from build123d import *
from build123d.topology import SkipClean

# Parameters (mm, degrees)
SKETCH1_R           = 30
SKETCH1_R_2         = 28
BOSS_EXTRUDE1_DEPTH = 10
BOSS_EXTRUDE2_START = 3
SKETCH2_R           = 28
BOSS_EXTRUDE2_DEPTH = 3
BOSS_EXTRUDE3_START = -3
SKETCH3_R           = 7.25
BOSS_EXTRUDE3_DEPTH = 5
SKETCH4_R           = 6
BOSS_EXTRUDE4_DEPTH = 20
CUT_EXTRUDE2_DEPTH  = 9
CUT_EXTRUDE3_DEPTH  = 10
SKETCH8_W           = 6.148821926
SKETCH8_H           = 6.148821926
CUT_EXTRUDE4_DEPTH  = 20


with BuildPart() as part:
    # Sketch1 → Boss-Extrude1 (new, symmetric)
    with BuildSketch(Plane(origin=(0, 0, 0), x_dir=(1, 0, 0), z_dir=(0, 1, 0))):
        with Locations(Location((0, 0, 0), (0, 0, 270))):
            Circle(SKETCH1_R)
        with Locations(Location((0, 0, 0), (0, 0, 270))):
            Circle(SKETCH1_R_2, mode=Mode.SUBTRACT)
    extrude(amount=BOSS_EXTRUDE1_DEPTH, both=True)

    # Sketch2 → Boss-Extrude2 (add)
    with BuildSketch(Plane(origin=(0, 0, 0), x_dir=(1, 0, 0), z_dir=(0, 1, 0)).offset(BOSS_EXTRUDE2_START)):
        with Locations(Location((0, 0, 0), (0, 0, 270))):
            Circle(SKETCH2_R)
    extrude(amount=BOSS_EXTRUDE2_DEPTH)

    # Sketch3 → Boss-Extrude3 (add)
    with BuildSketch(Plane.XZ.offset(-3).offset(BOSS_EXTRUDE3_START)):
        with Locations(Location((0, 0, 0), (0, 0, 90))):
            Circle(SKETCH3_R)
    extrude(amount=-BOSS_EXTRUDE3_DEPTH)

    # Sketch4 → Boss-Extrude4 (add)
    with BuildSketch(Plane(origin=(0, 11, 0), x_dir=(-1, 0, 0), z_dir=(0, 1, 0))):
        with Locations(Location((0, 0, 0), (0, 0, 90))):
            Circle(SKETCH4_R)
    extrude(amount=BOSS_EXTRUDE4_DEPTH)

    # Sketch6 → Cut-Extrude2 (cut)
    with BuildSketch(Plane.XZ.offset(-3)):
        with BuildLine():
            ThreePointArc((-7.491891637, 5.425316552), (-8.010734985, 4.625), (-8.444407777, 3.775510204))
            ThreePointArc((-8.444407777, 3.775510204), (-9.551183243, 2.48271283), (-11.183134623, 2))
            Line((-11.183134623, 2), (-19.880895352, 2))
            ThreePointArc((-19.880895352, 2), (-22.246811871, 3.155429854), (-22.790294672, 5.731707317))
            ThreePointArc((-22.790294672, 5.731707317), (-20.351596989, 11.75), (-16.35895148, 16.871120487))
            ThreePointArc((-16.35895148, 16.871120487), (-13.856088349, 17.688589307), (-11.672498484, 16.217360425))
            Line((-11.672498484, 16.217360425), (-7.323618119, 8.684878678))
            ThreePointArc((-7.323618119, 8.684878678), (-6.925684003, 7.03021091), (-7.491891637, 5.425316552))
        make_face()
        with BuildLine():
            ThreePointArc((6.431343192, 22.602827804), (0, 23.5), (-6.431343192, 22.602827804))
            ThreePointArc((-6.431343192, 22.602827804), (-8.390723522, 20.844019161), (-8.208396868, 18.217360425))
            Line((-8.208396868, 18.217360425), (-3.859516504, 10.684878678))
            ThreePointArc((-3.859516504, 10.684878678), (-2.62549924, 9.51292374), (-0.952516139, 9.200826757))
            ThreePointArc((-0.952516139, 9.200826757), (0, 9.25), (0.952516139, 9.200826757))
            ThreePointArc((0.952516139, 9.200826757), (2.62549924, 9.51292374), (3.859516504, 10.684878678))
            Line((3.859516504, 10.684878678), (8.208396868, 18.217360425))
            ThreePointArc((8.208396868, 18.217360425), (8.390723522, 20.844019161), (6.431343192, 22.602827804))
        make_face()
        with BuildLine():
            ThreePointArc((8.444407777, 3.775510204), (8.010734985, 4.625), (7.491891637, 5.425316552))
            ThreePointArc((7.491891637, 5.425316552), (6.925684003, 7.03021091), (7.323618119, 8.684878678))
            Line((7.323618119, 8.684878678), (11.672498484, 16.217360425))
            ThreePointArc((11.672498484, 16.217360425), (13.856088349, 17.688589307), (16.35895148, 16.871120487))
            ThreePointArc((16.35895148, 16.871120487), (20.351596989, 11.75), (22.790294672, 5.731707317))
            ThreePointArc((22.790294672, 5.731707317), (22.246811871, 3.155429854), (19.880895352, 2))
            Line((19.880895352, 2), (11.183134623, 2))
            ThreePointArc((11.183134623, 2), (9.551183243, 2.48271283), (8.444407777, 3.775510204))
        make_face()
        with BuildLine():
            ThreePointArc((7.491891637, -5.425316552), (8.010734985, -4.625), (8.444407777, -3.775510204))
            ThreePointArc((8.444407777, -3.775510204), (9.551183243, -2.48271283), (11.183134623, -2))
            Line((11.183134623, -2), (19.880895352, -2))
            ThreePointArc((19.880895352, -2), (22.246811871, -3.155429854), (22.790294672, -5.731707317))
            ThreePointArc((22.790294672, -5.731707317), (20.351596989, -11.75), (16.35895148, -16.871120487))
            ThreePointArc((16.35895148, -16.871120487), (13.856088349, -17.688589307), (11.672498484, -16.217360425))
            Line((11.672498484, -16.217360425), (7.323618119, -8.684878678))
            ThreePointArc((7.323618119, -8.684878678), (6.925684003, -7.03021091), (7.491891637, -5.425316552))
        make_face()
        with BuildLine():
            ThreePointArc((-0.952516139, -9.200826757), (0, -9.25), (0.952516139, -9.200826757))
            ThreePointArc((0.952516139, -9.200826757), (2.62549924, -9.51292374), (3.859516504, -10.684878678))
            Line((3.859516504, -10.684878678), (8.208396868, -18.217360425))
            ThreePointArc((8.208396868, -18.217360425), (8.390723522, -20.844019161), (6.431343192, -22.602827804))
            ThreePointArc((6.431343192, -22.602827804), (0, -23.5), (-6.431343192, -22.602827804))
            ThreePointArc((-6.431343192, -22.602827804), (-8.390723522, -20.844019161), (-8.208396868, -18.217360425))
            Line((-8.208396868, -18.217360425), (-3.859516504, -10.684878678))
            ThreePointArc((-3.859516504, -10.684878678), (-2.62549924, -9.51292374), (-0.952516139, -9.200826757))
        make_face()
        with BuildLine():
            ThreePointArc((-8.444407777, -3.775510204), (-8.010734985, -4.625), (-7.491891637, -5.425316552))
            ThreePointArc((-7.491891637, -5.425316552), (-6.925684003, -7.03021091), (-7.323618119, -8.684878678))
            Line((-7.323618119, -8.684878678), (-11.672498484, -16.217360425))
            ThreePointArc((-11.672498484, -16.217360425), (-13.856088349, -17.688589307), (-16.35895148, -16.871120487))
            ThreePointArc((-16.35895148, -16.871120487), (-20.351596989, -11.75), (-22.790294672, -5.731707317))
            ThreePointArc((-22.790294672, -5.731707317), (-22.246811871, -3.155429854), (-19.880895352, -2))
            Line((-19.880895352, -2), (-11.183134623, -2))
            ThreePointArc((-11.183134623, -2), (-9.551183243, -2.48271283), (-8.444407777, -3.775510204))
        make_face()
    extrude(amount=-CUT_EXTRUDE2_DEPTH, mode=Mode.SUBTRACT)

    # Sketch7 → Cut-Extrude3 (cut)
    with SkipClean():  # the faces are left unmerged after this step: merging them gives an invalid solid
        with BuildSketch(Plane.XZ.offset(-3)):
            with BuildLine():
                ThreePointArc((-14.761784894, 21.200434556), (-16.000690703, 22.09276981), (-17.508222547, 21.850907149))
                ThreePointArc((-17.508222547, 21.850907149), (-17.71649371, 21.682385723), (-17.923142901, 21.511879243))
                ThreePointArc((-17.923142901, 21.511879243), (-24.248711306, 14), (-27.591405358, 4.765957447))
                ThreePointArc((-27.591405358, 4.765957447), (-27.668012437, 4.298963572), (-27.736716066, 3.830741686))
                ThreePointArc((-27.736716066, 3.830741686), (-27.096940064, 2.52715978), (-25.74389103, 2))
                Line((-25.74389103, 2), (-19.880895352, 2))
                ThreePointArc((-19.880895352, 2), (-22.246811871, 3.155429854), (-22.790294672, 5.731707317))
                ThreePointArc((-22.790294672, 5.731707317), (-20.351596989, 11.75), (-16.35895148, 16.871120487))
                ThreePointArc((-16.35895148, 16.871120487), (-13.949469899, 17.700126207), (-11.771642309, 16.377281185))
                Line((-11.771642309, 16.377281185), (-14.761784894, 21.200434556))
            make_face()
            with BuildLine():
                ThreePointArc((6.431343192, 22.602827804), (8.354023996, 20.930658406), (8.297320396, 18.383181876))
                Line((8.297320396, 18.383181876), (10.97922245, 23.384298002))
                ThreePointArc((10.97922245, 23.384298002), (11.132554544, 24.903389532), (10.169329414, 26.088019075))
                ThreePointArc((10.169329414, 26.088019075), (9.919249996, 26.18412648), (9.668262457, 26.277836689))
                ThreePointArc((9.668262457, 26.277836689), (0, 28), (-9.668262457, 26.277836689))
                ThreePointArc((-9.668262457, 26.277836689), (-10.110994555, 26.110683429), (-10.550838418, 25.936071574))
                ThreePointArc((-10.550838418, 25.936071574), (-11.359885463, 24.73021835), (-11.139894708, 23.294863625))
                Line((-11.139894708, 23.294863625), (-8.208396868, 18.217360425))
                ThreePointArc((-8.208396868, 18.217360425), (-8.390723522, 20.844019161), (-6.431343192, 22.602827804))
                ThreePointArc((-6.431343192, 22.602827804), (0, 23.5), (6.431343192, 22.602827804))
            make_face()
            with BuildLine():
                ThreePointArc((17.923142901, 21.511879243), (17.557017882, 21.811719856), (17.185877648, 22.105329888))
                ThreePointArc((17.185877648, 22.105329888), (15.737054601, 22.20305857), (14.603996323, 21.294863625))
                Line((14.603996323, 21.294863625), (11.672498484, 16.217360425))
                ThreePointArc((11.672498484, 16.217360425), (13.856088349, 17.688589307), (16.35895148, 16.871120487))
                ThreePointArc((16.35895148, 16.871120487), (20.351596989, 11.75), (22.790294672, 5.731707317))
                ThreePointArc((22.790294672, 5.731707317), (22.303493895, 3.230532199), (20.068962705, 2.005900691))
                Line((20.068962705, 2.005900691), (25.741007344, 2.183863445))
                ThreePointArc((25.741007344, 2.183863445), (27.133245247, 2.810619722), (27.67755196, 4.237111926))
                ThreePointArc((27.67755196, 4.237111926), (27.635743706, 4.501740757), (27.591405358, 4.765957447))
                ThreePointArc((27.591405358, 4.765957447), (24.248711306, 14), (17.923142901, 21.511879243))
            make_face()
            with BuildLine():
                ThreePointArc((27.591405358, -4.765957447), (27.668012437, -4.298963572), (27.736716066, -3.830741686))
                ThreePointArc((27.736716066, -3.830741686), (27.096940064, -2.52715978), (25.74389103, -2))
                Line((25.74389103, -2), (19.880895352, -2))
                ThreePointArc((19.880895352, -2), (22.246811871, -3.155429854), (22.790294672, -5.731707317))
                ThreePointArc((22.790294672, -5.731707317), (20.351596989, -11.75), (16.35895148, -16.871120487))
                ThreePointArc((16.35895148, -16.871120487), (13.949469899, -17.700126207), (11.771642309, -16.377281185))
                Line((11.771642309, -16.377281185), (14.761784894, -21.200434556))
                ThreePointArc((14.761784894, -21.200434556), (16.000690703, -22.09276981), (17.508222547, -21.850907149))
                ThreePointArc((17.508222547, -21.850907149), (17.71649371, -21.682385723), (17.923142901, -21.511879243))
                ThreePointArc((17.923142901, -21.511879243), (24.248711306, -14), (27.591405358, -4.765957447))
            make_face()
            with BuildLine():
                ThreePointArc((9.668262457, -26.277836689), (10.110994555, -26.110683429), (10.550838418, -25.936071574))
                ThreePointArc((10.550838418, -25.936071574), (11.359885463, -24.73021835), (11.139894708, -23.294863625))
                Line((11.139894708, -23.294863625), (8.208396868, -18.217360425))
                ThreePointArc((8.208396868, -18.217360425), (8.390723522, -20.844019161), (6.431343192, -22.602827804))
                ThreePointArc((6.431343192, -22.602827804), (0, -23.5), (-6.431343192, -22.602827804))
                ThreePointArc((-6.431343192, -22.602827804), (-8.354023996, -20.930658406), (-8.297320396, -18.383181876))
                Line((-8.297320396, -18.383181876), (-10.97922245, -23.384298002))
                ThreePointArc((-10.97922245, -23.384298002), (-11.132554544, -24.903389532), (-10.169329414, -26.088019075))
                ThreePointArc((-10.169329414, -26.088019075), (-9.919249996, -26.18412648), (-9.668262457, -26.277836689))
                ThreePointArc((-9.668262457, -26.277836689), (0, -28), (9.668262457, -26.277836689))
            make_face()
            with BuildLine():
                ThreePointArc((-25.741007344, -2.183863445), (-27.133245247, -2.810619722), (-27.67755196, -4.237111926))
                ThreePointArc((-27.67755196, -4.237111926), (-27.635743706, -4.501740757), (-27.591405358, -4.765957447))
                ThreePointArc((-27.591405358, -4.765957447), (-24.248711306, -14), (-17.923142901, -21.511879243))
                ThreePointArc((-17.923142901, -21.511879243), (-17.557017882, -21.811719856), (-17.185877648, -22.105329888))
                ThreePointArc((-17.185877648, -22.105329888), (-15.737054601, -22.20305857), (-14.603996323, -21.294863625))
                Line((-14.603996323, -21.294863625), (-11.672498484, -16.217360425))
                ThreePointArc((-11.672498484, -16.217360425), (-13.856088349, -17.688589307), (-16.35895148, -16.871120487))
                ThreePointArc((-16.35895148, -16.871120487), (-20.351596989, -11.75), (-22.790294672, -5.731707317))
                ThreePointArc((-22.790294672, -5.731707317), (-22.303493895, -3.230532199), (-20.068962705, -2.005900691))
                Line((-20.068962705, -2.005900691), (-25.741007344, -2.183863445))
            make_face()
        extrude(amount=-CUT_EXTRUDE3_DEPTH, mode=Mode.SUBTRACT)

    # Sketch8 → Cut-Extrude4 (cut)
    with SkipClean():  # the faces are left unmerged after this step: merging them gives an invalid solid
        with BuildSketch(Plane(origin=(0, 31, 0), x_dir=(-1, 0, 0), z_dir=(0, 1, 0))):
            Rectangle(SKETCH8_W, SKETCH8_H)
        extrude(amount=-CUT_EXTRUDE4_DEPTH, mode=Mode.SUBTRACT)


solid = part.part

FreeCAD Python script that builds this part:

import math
import FreeCAD as App
import Part
import Sketcher

V = App.Vector
Q = App.Units.Quantity

doc = App.newDocument("Part")
body = doc.addObject("PartDesign::Body", "Body")

# Sketch on XZ plane
sketch1 = body.newObject("Sketcher::SketchObject", "Sketch")
sketch1.AttachmentSupport = (doc.getObject("XZ_Plane"), [""])
sketch1.MapMode = "FlatFace"
sketch1.addGeometry([
    Part.Circle(V(0, 0, 0), V(0, 0, 1), 30),
    Part.Circle(V(0, 0, 0), V(0, 0, 1), 28),
], False)
sketch1.addConstraint([
    Sketcher.Constraint("Coincident", 0, 3, -1, 1),
    Sketcher.Constraint("Coincident", 1, 3, -1, 1),
    Sketcher.Constraint("Diameter", 0, 60.0),
    Sketcher.Constraint("Diameter", 1, 56.0),
])
pad1 = body.newObject("PartDesign::Pad", "Pad")
pad1.Profile = sketch1
pad1.Length = 20
pad1.Midplane = True

# Sketch on XZ plane
sketch2 = body.newObject("Sketcher::SketchObject", "Sketch001")
sketch2.AttachmentSupport = (doc.getObject("XZ_Plane"), [""])
sketch2.MapMode = "FlatFace"
sketch2.AttachmentOffset = App.Placement(V(0, 0, -3), App.Rotation())
sketch2.addGeometry(Part.Circle(V(0, 0, 0), V(0, 0, 1), 28), False)
sketch2.addConstraint([
    Sketcher.Constraint("Coincident", 0, 3, -1, 1),
    Sketcher.Constraint("Diameter", 0, 56.0),
])
pad2 = body.newObject("PartDesign::Pad", "Pad001")
pad2.Profile = sketch2
pad2.Length = 3
pad2.Reversed = True

# Sketch on XZ plane
sketch3 = body.newObject("Sketcher::SketchObject", "Sketch002")
sketch3.AttachmentSupport = (doc.getObject("XZ_Plane"), [""])
sketch3.MapMode = "FlatFace"
sketch3.AttachmentOffset = App.Placement(V(0, 0, -6), App.Rotation())
sketch3.addGeometry(Part.Circle(V(0, 0, 0), V(0, 0, 1), 7), False)
sketch3.addConstraint([
    Sketcher.Constraint("Coincident", 0, 3, -1, 1),
    Sketcher.Constraint("Diameter", 0, 14.5),
])
pad3 = body.newObject("PartDesign::Pad", "Pad002")
pad3.Profile = sketch3
pad3.Length = 5
pad3.Reversed = True

# Sketch on XZ plane
sketch4 = body.newObject("Sketcher::SketchObject", "Sketch003")
sketch4.AttachmentSupport = (doc.getObject("XZ_Plane"), [""])
sketch4.MapMode = "FlatFace"
sketch4.AttachmentOffset = App.Placement(V(0, 0, -11), App.Rotation())
sketch4.addGeometry(Part.Circle(V(0, 0, 0), V(0, 0, 1), 6), False)
sketch4.addConstraint([
    Sketcher.Constraint("Coincident", 0, 3, -1, 1),
    Sketcher.Constraint("Diameter", 0, 12.0),
])
pad4 = body.newObject("PartDesign::Pad", "Pad003")
pad4.Profile = sketch4
pad4.Length = 20
pad4.Reversed = True

# Sketch on XZ plane
sketch5 = body.newObject("Sketcher::SketchObject", "Sketch004")
sketch5.AttachmentSupport = (doc.getObject("XZ_Plane"), [""])
sketch5.MapMode = "FlatFace"
sketch5.AttachmentOffset = App.Placement(V(0, 0, -3), App.Rotation())
sketch5.addGeometry([
    Part.ArcOfCircle(Part.Circle(V(0, 0, 0), V(0, 0, 1), 9.2), math.radians(144.09), math.radians(155.91)),  # 0
    Part.ArcOfCircle(Part.Circle(V(-9.9, 7.2, 0), V(0, 0, 1), 3), math.radians(-36), math.radians(30)),  # 1
    Part.LineSegment(V(-7.3, 8.7, 0), V(-11.7, 16.2, 0)),  # 2
    Part.ArcOfCircle(Part.Circle(V(-14.3, 14.7, 0), V(0, 0, 1), 3), math.radians(30), math.radians(134)),  # 3
    Part.ArcOfCircle(Part.Circle(V(0, 0, 0), V(0, 0, 1), 23.5), math.radians(134), math.radians(166)),  # 4
    Part.ArcOfCircle(Part.Circle(V(-19.9, 5, 0), V(0, 0, 1), 3), math.radians(166), math.radians(270)),  # 5
    Part.LineSegment(V(-19.9, 2, 0), V(-11.2, 2, 0)),  # 6
    Part.ArcOfCircle(Part.Circle(V(-11.2, 5, 0), V(0, 0, 1), 3), math.radians(-90), math.radians(-24)),  # 7
    Part.ArcOfCircle(Part.Circle(V(0, 0, 0), V(0, 0, 1), 23.5), math.radians(74), math.radians(106)),  # 8
    Part.ArcOfCircle(Part.Circle(V(-5.6, 19.7, 0), V(0, 0, 1), 3), math.radians(106), math.radians(210)),  # 9
    Part.LineSegment(V(-8.2, 18.2, 0), V(-3.9, 10.7, 0)),  # 10
    Part.ArcOfCircle(Part.Circle(V(-1.3, 12.2, 0), V(0, 0, 1), 3), math.radians(-150), math.radians(-84)),  # 11
    Part.ArcOfCircle(Part.Circle(V(0, 0, 0), V(0, 0, 1), 9.3), math.radians(84.09), math.radians(95.91)),  # 12
    Part.ArcOfCircle(Part.Circle(V(1.3, 12.2, 0), V(0, 0, 1), 3), math.radians(-96), math.radians(-30)),  # 13
    Part.LineSegment(V(3.9, 10.7, 0), V(8.2, 18.2, 0)),  # 14
    Part.ArcOfCircle(Part.Circle(V(5.6, 19.7, 0), V(0, 0, 1), 3), math.radians(-30), math.radians(74)),  # 15
    Part.ArcOfCircle(Part.Circle(V(0, 0, 0), V(0, 0, 1), 9.2), math.radians(24.09), math.radians(35.91)),  # 16
    Part.ArcOfCircle(Part.Circle(V(11.2, 5, 0), V(0, 0, 1), 3), math.radians(-156), math.radians(-90)),  # 17
    Part.LineSegment(V(11.2, 2, 0), V(19.9, 2, 0)),  # 18
    Part.ArcOfCircle(Part.Circle(V(19.9, 5, 0), V(0, 0, 1), 3), math.radians(-90), math.radians(14)),  # 19
    Part.ArcOfCircle(Part.Circle(V(0, 0, 0), V(0, 0, 1), 23.5), math.radians(14), math.radians(46)),  # 20
    Part.ArcOfCircle(Part.Circle(V(14.3, 14.7, 0), V(0, 0, 1), 3), math.radians(46), math.radians(150)),  # 21
    Part.LineSegment(V(11.7, 16.2, 0), V(7.3, 8.7, 0)),  # 22
    Part.ArcOfCircle(Part.Circle(V(9.9, 7.2, 0), V(0, 0, 1), 3), math.radians(150), math.radians(216)),  # 23
    Part.ArcOfCircle(Part.Circle(V(0, 0, 0), V(0, 0, 1), 9.2), math.radians(-35.91), math.radians(-24.09)),  # 24
    Part.ArcOfCircle(Part.Circle(V(9.9, -7.2, 0), V(0, 0, 1), 3), math.radians(144), math.radians(210)),  # 25
    Part.LineSegment(V(7.3, -8.7, 0), V(11.7, -16.2, 0)),  # 26
    Part.ArcOfCircle(Part.Circle(V(14.3, -14.7, 0), V(0, 0, 1), 3), math.radians(-150), math.radians(-46)),  # 27
    Part.ArcOfCircle(Part.Circle(V(0, 0, 0), V(0, 0, 1), 23.5), math.radians(-46), math.radians(-14)),  # 28
    Part.ArcOfCircle(Part.Circle(V(19.9, -5, 0), V(0, 0, 1), 3), math.radians(-14), math.radians(90)),  # 29
    Part.LineSegment(V(19.9, -2, 0), V(11.2, -2, 0)),  # 30
    Part.ArcOfCircle(Part.Circle(V(11.2, -5, 0), V(0, 0, 1), 3), math.radians(90), math.radians(156)),  # 31
    Part.ArcOfCircle(Part.Circle(V(0, 0, 0), V(0, 0, 1), 9.3), math.radians(-95.91), math.radians(-84.09)),  # 32
    Part.ArcOfCircle(Part.Circle(V(-1.3, -12.2, 0), V(0, 0, 1), 3), math.radians(84), math.radians(150)),  # 33
    Part.LineSegment(V(-3.9, -10.7, 0), V(-8.2, -18.2, 0)),  # 34
    Part.ArcOfCircle(Part.Circle(V(-5.6, -19.7, 0), V(0, 0, 1), 3), math.radians(150), math.radians(254)),  # 35
    Part.ArcOfCircle(Part.Circle(V(0, 0, 0), V(0, 0, 1), 23.5), math.radians(-106), math.radians(-74)),  # 36
    Part.ArcOfCircle(Part.Circle(V(5.6, -19.7, 0), V(0, 0, 1), 3), math.radians(-74), math.radians(30)),  # 37
    Part.LineSegment(V(8.2, -18.2, 0), V(3.9, -10.7, 0)),  # 38
    Part.ArcOfCircle(Part.Circle(V(1.3, -12.2, 0), V(0, 0, 1), 3), math.radians(30), math.radians(96)),  # 39
    Part.ArcOfCircle(Part.Circle(V(0, 0, 0), V(0, 0, 1), 9.2), math.radians(-155.91), math.radians(-144.09)),  # 40
    Part.ArcOfCircle(Part.Circle(V(-11.2, -5, 0), V(0, 0, 1), 3), math.radians(24), math.radians(90)),  # 41
    Part.LineSegment(V(-11.2, -2, 0), V(-19.9, -2, 0)),  # 42
    Part.ArcOfCircle(Part.Circle(V(-19.9, -5, 0), V(0, 0, 1), 3), math.radians(90), math.radians(194)),  # 43
    Part.ArcOfCircle(Part.Circle(V(0, 0, 0), V(0, 0, 1), 23.5), math.radians(-166), math.radians(-134)),  # 44
    Part.ArcOfCircle(Part.Circle(V(-14.3, -14.7, 0), V(0, 0, 1), 3), math.radians(-134), math.radians(-30)),  # 45
    Part.LineSegment(V(-11.7, -16.2, 0), V(-7.3, -8.7, 0)),  # 46
    Part.ArcOfCircle(Part.Circle(V(-9.9, -7.2, 0), V(0, 0, 1), 3), math.radians(-30), math.radians(36)),  # 47
], False)
sketch5.addConstraint([
    Sketcher.Constraint("Tangent", 0, 1, 1, 1),
    Sketcher.Constraint("Tangent", 1, 2, 2, 1),
    Sketcher.Constraint("Tangent", 2, 2, 3, 1),
    Sketcher.Constraint("Tangent", 3, 2, 4, 1),
    Sketcher.Constraint("Tangent", 4, 2, 5, 1),
    Sketcher.Constraint("Tangent", 5, 2, 6, 1),
    Sketcher.Constraint("Tangent", 6, 2, 7, 1),
    Sketcher.Constraint("Tangent", 7, 2, 0, 2),
    Sketcher.Constraint("Tangent", 8, 2, 9, 1),
    Sketcher.Constraint("Tangent", 9, 2, 10, 1),
    Sketcher.Constraint("Tangent", 10, 2, 11, 1),
    Sketcher.Constraint("Tangent", 11, 2, 12, 2),
    Sketcher.Constraint("Tangent", 12, 1, 13, 1),
    Sketcher.Constraint("Tangent", 13, 2, 14, 1),
    Sketcher.Constraint("Tangent", 14, 2, 15, 1),
    Sketcher.Constraint("Tangent", 15, 2, 8, 1),
    Sketcher.Constraint("Tangent", 16, 1, 17, 1),
    Sketcher.Constraint("Tangent", 17, 2, 18, 1),
    Sketcher.Constraint("Tangent", 18, 2, 19, 1),
    Sketcher.Constraint("Tangent", 19, 2, 20, 1),
    Sketcher.Constraint("Tangent", 20, 2, 21, 1),
    Sketcher.Constraint("Tangent", 21, 2, 22, 1),
    Sketcher.Constraint("Tangent", 22, 2, 23, 1),
    Sketcher.Constraint("Tangent", 23, 2, 16, 2),
    Sketcher.Constraint("Tangent", 24, 1, 25, 1),
    Sketcher.Constraint("Tangent", 25, 2, 26, 1),
    Sketcher.Constraint("Tangent", 26, 2, 27, 1),
    Sketcher.Constraint("Tangent", 27, 2, 28, 1),
    Sketcher.Constraint("Tangent", 28, 2, 29, 1),
    Sketcher.Constraint("Tangent", 29, 2, 30, 1),
    Sketcher.Constraint("Tangent", 30, 2, 31, 1),
    Sketcher.Constraint("Tangent", 31, 2, 24, 2),
    Sketcher.Constraint("Tangent", 32, 1, 33, 1),
    Sketcher.Constraint("Tangent", 33, 2, 34, 1),
    Sketcher.Constraint("Tangent", 34, 2, 35, 1),
    Sketcher.Constraint("Tangent", 35, 2, 36, 1),
    Sketcher.Constraint("Tangent", 36, 2, 37, 1),
    Sketcher.Constraint("Tangent", 37, 2, 38, 1),
    Sketcher.Constraint("Tangent", 38, 2, 39, 1),
    Sketcher.Constraint("Tangent", 39, 2, 32, 2),
    Sketcher.Constraint("Tangent", 40, 1, 41, 1),
    Sketcher.Constraint("Tangent", 41, 2, 42, 1),
    Sketcher.Constraint("Tangent", 42, 2, 43, 1),
    Sketcher.Constraint("Tangent", 43, 2, 44, 1),
    Sketcher.Constraint("Tangent", 44, 2, 45, 1),
    Sketcher.Constraint("Tangent", 45, 2, 46, 1),
    Sketcher.Constraint("Tangent", 46, 2, 47, 1),
    Sketcher.Constraint("Tangent", 47, 2, 40, 2),
    Sketcher.Constraint("Horizontal", 6),
    Sketcher.Constraint("Horizontal", 18),
    Sketcher.Constraint("Horizontal", 30),
    Sketcher.Constraint("Horizontal", 42),
    Sketcher.Constraint("Coincident", 0, 3, -1, 1),
    Sketcher.Constraint("Coincident", 4, 3, -1, 1),
    Sketcher.Constraint("Coincident", 8, 3, -1, 1),
    Sketcher.Constraint("Coincident", 12, 3, -1, 1),
    Sketcher.Constraint("Coincident", 16, 3, -1, 1),
    Sketcher.Constraint("Coincident", 20, 3, -1, 1),
    Sketcher.Constraint("Coincident", 24, 3, -1, 1),
    Sketcher.Constraint("Coincident", 28, 3, -1, 1),
    Sketcher.Constraint("Coincident", 32, 3, -1, 1),
    Sketcher.Constraint("Coincident", 36, 3, -1, 1),
    Sketcher.Constraint("Coincident", 40, 3, -1, 1),
    Sketcher.Constraint("Coincident", 44, 3, -1, 1),
    Sketcher.Constraint("Equal", 1, 3),
    Sketcher.Constraint("Equal", 3, 5),
    Sketcher.Constraint("Equal", 5, 7),
    Sketcher.Constraint("Equal", 4, 8),
    Sketcher.Constraint("Equal", 7, 9),
    Sketcher.Constraint("Equal", 9, 11),
    Sketcher.Constraint("Equal", 0, 12),
    Sketcher.Constraint("Equal", 11, 13),
    Sketcher.Constraint("Equal", 13, 15),
    Sketcher.Constraint("Equal", 12, 16),
    Sketcher.Constraint("Equal", 15, 17),
    Sketcher.Constraint("Equal", 17, 19),
    Sketcher.Constraint("Equal", 8, 20),
    Sketcher.Constraint("Equal", 19, 21),
    Sketcher.Constraint("Equal", 21, 23),
    Sketcher.Constraint("Equal", 16, 24),
    Sketcher.Constraint("Equal", 23, 25),
    Sketcher.Constraint("Equal", 25, 27),
    Sketcher.Constraint("Equal", 20, 28),
    Sketcher.Constraint("Equal", 27, 29),
    Sketcher.Constraint("Equal", 29, 31),
    Sketcher.Constraint("Equal", 24, 32),
    Sketcher.Constraint("Equal", 31, 33),
    Sketcher.Constraint("Equal", 33, 35),
    Sketcher.Constraint("Equal", 28, 36),
    Sketcher.Constraint("Equal", 35, 37),
    Sketcher.Constraint("Equal", 37, 39),
    Sketcher.Constraint("Equal", 32, 40),
    Sketcher.Constraint("Equal", 39, 41),
    Sketcher.Constraint("Equal", 41, 43),
    Sketcher.Constraint("Equal", 36, 44),
    Sketcher.Constraint("Equal", 43, 45),
    Sketcher.Constraint("Equal", 45, 47),
    Sketcher.Constraint("Symmetric", 1, 2, 25, 2, -1, 1),
    Sketcher.Constraint("Symmetric", 13, 2, 33, 2, -1, 1),
    Sketcher.Constraint("Symmetric", 9, 2, 37, 2, -1, 1),
    Sketcher.Constraint("Symmetric", 21, 2, 45, 2, -1, 1),
    Sketcher.Constraint("Symmetric", 10, 2, 13, 2, -2),
    Sketcher.Constraint("Symmetric", 2, 2, 21, 2, -2),
    Sketcher.Constraint("Parallel", 2, 10),
    Sketcher.Constraint("Horizontal", 7, 3, 17, 3),
    Sketcher.Constraint("Horizontal", 31, 3, 41, 3),
    Sketcher.Constraint("Vertical", 19, 3, 29, 3),
    Sketcher.Constraint("Equal", 2, 10),
    Sketcher.Constraint("Radius", 1, 3.0),
    Sketcher.Constraint("Radius", 4, 23.5),
    Sketcher.Constraint("Angle", 2, Q("120 deg")),
    Sketcher.Constraint("Radius", 0, 9.25),
    Sketcher.Constraint("DistanceY", -1, 1, 5, 3, 5.0),
    Sketcher.Constraint("DistanceX", 2, 2, -1, 1, 11.672498),
])
pocket1 = body.newObject("PartDesign::Pocket", "Pocket")
pocket1.Profile = sketch5
pocket1.Length = 9

# Sketch on XZ plane
sketch6 = body.newObject("Sketcher::SketchObject", "Sketch005")
sketch6.AttachmentSupport = (doc.getObject("XZ_Plane"), [""])
sketch6.MapMode = "FlatFace"
sketch6.AttachmentOffset = App.Placement(V(0, 0, -3), App.Rotation())
sketch6.addGeometry([
    Part.ArcOfCircle(Part.Circle(V(-16.461624, 20.146609, 0), V(0, 0, 1), 2), math.radians(31.797089), math.radians(121.553828)),  # 0
    Part.ArcOfCircle(Part.Circle(V(-0.000004, 0.000005, 0), V(0, 0, 1), 27.999994), math.radians(128.703745), math.radians(129.80019)),  # 1
    Part.ArcOfCircle(Part.Circle(V(0, 0, 0), V(0, 0, 1), 28), math.radians(129.80019), math.radians(170.19981)),  # 2
    Part.ArcOfCircle(Part.Circle(V(0, 0, 0), V(0, 0, 1), 28), math.radians(170.19981), math.radians(172.136576)),  # 3
    Part.ArcOfCircle(Part.Circle(V(-25.743891, 4, 0), V(0, 0, 1), 2), math.radians(-175.1453), math.radians(-90)),  # 4
    Part.LineSegment(V(-25.743891, 2, 0), V(-19.880895, 2, 0)),  # 5
    Part.ArcOfCircle(Part.Circle(V(-19.880895, 5, 0), V(0, 0, 1), 3), math.radians(165.883019), math.radians(270)),  # 6
    Part.ArcOfCircle(Part.Circle(V(0, 0, 0), V(0, 0, 1), 23.5), math.radians(134.116981), math.radians(165.883019)),  # 7
    Part.ArcOfCircle(Part.Circle(V(-14.270575, 14.71736, 0), V(0, 0, 1), 3), math.radians(33.594179), math.radians(134.116981)),  # 8
    Part.LineSegment(V(-11.771642, 16.377281, 0), V(-14.761785, 21.200435, 0)),  # 9
    Part.ArcOfCircle(Part.Circle(V(5.610321, 19.71736, 0), V(0, 0, 1), 3), math.radians(-26.405821), math.radians(74.116981)),  # 10
    Part.LineSegment(V(8.29732, 18.383182, 0), V(10.979222, 23.384298, 0)),  # 11
    Part.ArcOfCircle(Part.Circle(V(9.216664, 24.329489, 0), V(0, 0, 1), 2), math.radians(-28.202911), math.radians(61.553828)),  # 12
    Part.ArcOfCircle(Part.Circle(V(0.000002, 0.000005, 0), V(0, 0, 1), 27.999994), math.radians(68.703745), math.radians(69.80019)),  # 13
    Part.ArcOfCircle(Part.Circle(V(0, 0, 0), V(0, 0, 1), 28), math.radians(69.80019), math.radians(110.19981)),  # 14
    Part.ArcOfCircle(Part.Circle(V(-0.000001, 0.000002, 0), V(0, 0, 1), 27.999998), math.radians(110.19981), math.radians(112.136576)),  # 15
    Part.ArcOfCircle(Part.Circle(V(-9.407844, 24.294864, 0), V(0, 0, 1), 2), math.radians(124.8547), math.radians(210)),  # 16
    Part.LineSegment(V(-11.139895, 23.294864, 0), V(-8.208397, 18.21736, 0)),  # 17
    Part.ArcOfCircle(Part.Circle(V(-5.610321, 19.71736, 0), V(0, 0, 1), 3), math.radians(105.883019), math.radians(210)),  # 18
    Part.ArcOfCircle(Part.Circle(V(0, 0, 0), V(0, 0, 1), 23.5), math.radians(74.116981), math.radians(105.883019)),  # 19
    Part.ArcOfCircle(Part.Circle(V(-0.000001, -0.000002, 0), V(0, 0, 1), 28.000002), math.radians(50.19981), math.radians(52.136576)),  # 20
    Part.ArcOfCircle(Part.Circle(V(16.336047, 20.294864, 0), V(0, 0, 1), 2), math.radians(64.8547), math.radians(150)),  # 21
    Part.LineSegment(V(14.603996, 21.294864, 0), V(11.672498, 16.21736, 0)),  # 22
    Part.ArcOfCircle(Part.Circle(V(14.270575, 14.71736, 0), V(0, 0, 1), 3), math.radians(45.883019), math.radians(150)),  # 23
    Part.ArcOfCircle(Part.Circle(V(0, 0, 0), V(0, 0, 1), 23.5), math.radians(14.116981), math.radians(45.883019)),  # 24
    Part.ArcOfCircle(Part.Circle(V(19.880895, 5, 0), V(0, 0, 1), 3), math.radians(-86.405821), math.radians(14.116981)),  # 25
    Part.LineSegment(V(20.068963, 2.005901, 0), V(25.741007, 2.183863, 0)),  # 26
    Part.ArcOfCircle(Part.Circle(V(25.678287, 4.18288, 0), V(0, 0, 1), 2), math.radians(-88.202911), math.radians(1.553828)),  # 27
    Part.ArcOfCircle(Part.Circle(V(0.000013, 0.000002, 0), V(0, 0, 1), 27.999987), math.radians(8.703744), math.radians(9.80019)),  # 28
    Part.ArcOfCircle(Part.Circle(V(0, 0, 0), V(0, 0, 1), 28), math.radians(9.80019), math.radians(50.19981)),  # 29
    Part.ArcOfCircle(Part.Circle(V(0, 0, 0), V(0, 0, 1), 28), math.radians(-9.80019), math.radians(-7.863424)),  # 30
    Part.ArcOfCircle(Part.Circle(V(25.743891, -4, 0), V(0, 0, 1), 2), math.radians(4.8547), math.radians(90)),  # 31
    Part.LineSegment(V(25.743891, -2, 0), V(19.880895, -2, 0)),  # 32
    Part.ArcOfCircle(Part.Circle(V(19.880895, -5, 0), V(0, 0, 1), 3), math.radians(-14.116981), math.radians(90)),  # 33
    Part.ArcOfCircle(Part.Circle(V(0, 0, 0), V(0, 0, 1), 23.5), math.radians(-45.883019), math.radians(-14.116981)),  # 34
    Part.ArcOfCircle(Part.Circle(V(14.270575, -14.71736, 0), V(0, 0, 1), 3), math.radians(-146.405821), math.radians(-45.883019)),  # 35
    Part.LineSegment(V(11.771642, -16.377281, 0), V(14.761785, -21.200435, 0)),  # 36
    Part.ArcOfCircle(Part.Circle(V(16.461624, -20.146609, 0), V(0, 0, 1), 2), math.radians(-148.202911), math.radians(-58.446172)),  # 37
    Part.ArcOfCircle(Part.Circle(V(0.000004, -0.000005, 0), V(0, 0, 1), 27.999994), math.radians(-51.296255), math.radians(-50.19981)),  # 38
    Part.ArcOfCircle(Part.Circle(V(0, 0, 0), V(0, 0, 1), 28), math.radians(-50.19981), math.radians(-9.80019)),  # 39
    Part.ArcOfCircle(Part.Circle(V(0.000001, -0.000002, 0), V(0, 0, 1), 27.999998), math.radians(-69.80019), math.radians(-67.863424)),  # 40
    Part.ArcOfCircle(Part.Circle(V(9.407844, -24.294864, 0), V(0, 0, 1), 2), math.radians(-55.1453), math.radians(30)),  # 41
    Part.LineSegment(V(11.139895, -23.294864, 0), V(8.208397, -18.21736, 0)),  # 42
    Part.ArcOfCircle(Part.Circle(V(5.610321, -19.71736, 0), V(0, 0, 1), 3), math.radians(-74.116981), math.radians(30)),  # 43
    Part.ArcOfCircle(Part.Circle(V(0, 0, 0), V(0, 0, 1), 23.5), math.radians(-105.883019), math.radians(-74.116981)),  # 44
    Part.ArcOfCircle(Part.Circle(V(-5.610321, -19.71736, 0), V(0, 0, 1), 3), math.radians(153.594179), math.radians(254.116981)),  # 45
    Part.LineSegment(V(-8.29732, -18.383182, 0), V(-10.979222, -23.384298, 0)),  # 46
    Part.ArcOfCircle(Part.Circle(V(-9.216664, -24.329489, 0), V(0, 0, 1), 2), math.radians(151.797089), math.radians(241.553828)),  # 47
    Part.ArcOfCircle(Part.Circle(V(-0.000002, -0.000005, 0), V(0, 0, 1), 27.999994), math.radians(-111.296255), math.radians(-110.19981)),  # 48
    Part.ArcOfCircle(Part.Circle(V(0, 0, 0), V(0, 0, 1), 28), math.radians(-110.19981), math.radians(-69.80019)),  # 49
    Part.ArcOfCircle(Part.Circle(V(-25.678287, -4.18288, 0), V(0, 0, 1), 2), math.radians(91.797089), math.radians(181.553828)),  # 50
    Part.ArcOfCircle(Part.Circle(V(-0.000013, -0.000002, 0), V(0, 0, 1), 27.999987), math.radians(-171.296256), math.radians(-170.19981)),  # 51
    Part.ArcOfCircle(Part.Circle(V(0, 0, 0), V(0, 0, 1), 28), math.radians(-170.19981), math.radians(-129.80019)),  # 52
    Part.ArcOfCircle(Part.Circle(V(0.000001, 0.000002, 0), V(0, 0, 1), 28.000002), math.radians(-129.80019), math.radians(-127.863424)),  # 53
    Part.ArcOfCircle(Part.Circle(V(-16.336047, -20.294864, 0), V(0, 0, 1), 2), math.radians(-115.1453), math.radians(-30)),  # 54
    Part.LineSegment(V(-14.603996, -21.294864, 0), V(-11.672498, -16.21736, 0)),  # 55
    Part.ArcOfCircle(Part.Circle(V(-14.270575, -14.71736, 0), V(0, 0, 1), 3), math.radians(-134.116981), math.radians(-30)),  # 56
    Part.ArcOfCircle(Part.Circle(V(0, 0, 0), V(0, 0, 1), 23.5), math.radians(-165.883019), math.radians(-134.116981)),  # 57
    Part.ArcOfCircle(Part.Circle(V(-19.880895, -5, 0), V(0, 0, 1), 3), math.radians(93.594179), math.radians(194.116981)),  # 58
    Part.LineSegment(V(-20.068963, -2.005901, 0), V(-25.741007, -2.183863, 0)),  # 59
], False)
sketch6.addConstraint([
    Sketcher.Constraint("Coincident", 0, 2, 1, 1),
    Sketcher.Constraint("Coincident", 1, 2, 2, 1),
    Sketcher.Constraint("Coincident", 2, 2, 3, 1),
    Sketcher.Constraint("Coincident", 3, 2, 4, 1),
    Sketcher.Constraint("Coincident", 4, 2, 5, 1),
    Sketcher.Constraint("Coincident", 5, 2, 6, 2),
    Sketcher.Constraint("Coincident", 6, 1, 7, 2),
    Sketcher.Constraint("Coincident", 7, 1, 8, 2),
    Sketcher.Constraint("Coincident", 8, 1, 9, 1),
    Sketcher.Constraint("Coincident", 9, 2, 0, 1),
    Sketcher.Constraint("Coincident", 10, 1, 11, 1),
    Sketcher.Constraint("Coincident", 11, 2, 12, 1),
    Sketcher.Constraint("Coincident", 12, 2, 13, 1),
    Sketcher.Constraint("Coincident", 13, 2, 14, 1),
    Sketcher.Constraint("Coincident", 14, 2, 15, 1),
    Sketcher.Constraint("Coincident", 15, 2, 16, 1),
    Sketcher.Constraint("Coincident", 16, 2, 17, 1),
    Sketcher.Constraint("Coincident", 17, 2, 18, 2),
    Sketcher.Constraint("Coincident", 18, 1, 19, 2),
    Sketcher.Constraint("Coincident", 19, 1, 10, 2),
    Sketcher.Constraint("Coincident", 20, 2, 21, 1),
    Sketcher.Constraint("Coincident", 21, 2, 22, 1),
    Sketcher.Constraint("Coincident", 22, 2, 23, 2),
    Sketcher.Constraint("Coincident", 23, 1, 24, 2),
    Sketcher.Constraint("Coincident", 24, 1, 25, 2),
    Sketcher.Constraint("Coincident", 25, 1, 26, 1),
    Sketcher.Constraint("Coincident", 26, 2, 27, 1),
    Sketcher.Constraint("Coincident", 27, 2, 28, 1),
    Sketcher.Constraint("Coincident", 28, 2, 29, 1),
    Sketcher.Constraint("Coincident", 29, 2, 20, 1),
    Sketcher.Constraint("Coincident", 30, 2, 31, 1),
    Sketcher.Constraint("Coincident", 31, 2, 32, 1),
    Sketcher.Constraint("Coincident", 32, 2, 33, 2),
    Sketcher.Constraint("Coincident", 33, 1, 34, 2),
    Sketcher.Constraint("Coincident", 34, 1, 35, 2),
    Sketcher.Constraint("Coincident", 35, 1, 36, 1),
    Sketcher.Constraint("Coincident", 36, 2, 37, 1),
    Sketcher.Constraint("Coincident", 37, 2, 38, 1),
    Sketcher.Constraint("Coincident", 38, 2, 39, 1),
    Sketcher.Constraint("Coincident", 39, 2, 30, 1),
    Sketcher.Constraint("Coincident", 40, 2, 41, 1),
    Sketcher.Constraint("Coincident", 41, 2, 42, 1),
    Sketcher.Constraint("Coincident", 42, 2, 43, 2),
    Sketcher.Constraint("Coincident", 43, 1, 44, 2),
    Sketcher.Constraint("Coincident", 44, 1, 45, 2),
    Sketcher.Constraint("Coincident", 45, 1, 46, 1),
    Sketcher.Constraint("Coincident", 46, 2, 47, 1),
    Sketcher.Constraint("Coincident", 47, 2, 48, 1),
    Sketcher.Constraint("Coincident", 48, 2, 49, 1),
    Sketcher.Constraint("Coincident", 49, 2, 40, 1),
    Sketcher.Constraint("Coincident", 50, 2, 51, 1),
    Sketcher.Constraint("Coincident", 51, 2, 52, 1),
    Sketcher.Constraint("Coincident", 52, 2, 53, 1),
    Sketcher.Constraint("Coincident", 53, 2, 54, 1),
    Sketcher.Constraint("Coincident", 54, 2, 55, 1),
    Sketcher.Constraint("Coincident", 55, 2, 56, 2),
    Sketcher.Constraint("Coincident", 56, 1, 57, 2),
    Sketcher.Constraint("Coincident", 57, 1, 58, 2),
    Sketcher.Constraint("Coincident", 58, 1, 59, 1),
    Sketcher.Constraint("Coincident", 59, 2, 50, 1),
    Sketcher.Constraint("Horizontal", 5),
    Sketcher.Constraint("Horizontal", 32),
    Sketcher.Constraint("Coincident", 1, 3, -1, 1),
    Sketcher.Constraint("Coincident", 2, 3, -1, 1),
    Sketcher.Constraint("Coincident", 3, 3, -1, 1),
    Sketcher.Constraint("Coincident", 7, 3, -1, 1),
    Sketcher.Constraint("Coincident", 13, 3, -1, 1),
    Sketcher.Constraint("Coincident", 14, 3, -1, 1),
    Sketcher.Constraint("Coincident", 15, 3, -1, 1),
    Sketcher.Constraint("Coincident", 19, 3, -1, 1),
    Sketcher.Constraint("Coincident", 20, 3, -1, 1),
    Sketcher.Constraint("Coincident", 24, 3, -1, 1),
    Sketcher.Constraint("Coincident", 29, 3, -1, 1),
    Sketcher.Constraint("Coincident", 30, 3, -1, 1),
    Sketcher.Constraint("Coincident", 34, 3, -1, 1),
    Sketcher.Constraint("Coincident", 38, 3, -1, 1),
    Sketcher.Constraint("Coincident", 39, 3, -1, 1),
    Sketcher.Constraint("Coincident", 40, 3, -1, 1),
    Sketcher.Constraint("Coincident", 44, 3, -1, 1),
    Sketcher.Constraint("Coincident", 48, 3, -1, 1),
    Sketcher.Constraint("Coincident", 49, 3, -1, 1),
    Sketcher.Constraint("Coincident", 52, 3, -1, 1),
    Sketcher.Constraint("Coincident", 53, 3, -1, 1),
    Sketcher.Constraint("Coincident", 57, 3, -1, 1),
    Sketcher.Constraint("Radius", 0, 2.0),
    Sketcher.Constraint("Radius", 2, 28.0),
    Sketcher.Constraint("Radius", 4, 2.0),
    Sketcher.Constraint("Radius", 6, 3.0),
    Sketcher.Constraint("Radius", 8, 3.0),
    Sketcher.Constraint("Radius", 10, 3.0),
    Sketcher.Constraint("Radius", 12, 2.0),
    Sketcher.Constraint("Radius", 14, 28.0),
    Sketcher.Constraint("Radius", 16, 2.0),
    Sketcher.Constraint("Radius", 18, 3.0),
    Sketcher.Constraint("Radius", 21, 2.0),
    Sketcher.Constraint("Radius", 23, 3.0),
    Sketcher.Constraint("Radius", 25, 3.0),
    Sketcher.Constraint("Radius", 27, 2.0),
    Sketcher.Constraint("Radius", 29, 28.0),
    Sketcher.Constraint("Radius", 30, 28.0),
    Sketcher.Constraint("Radius", 31, 2.0),
    Sketcher.Constraint("Radius", 33, 3.0),
    Sketcher.Constraint("Radius", 35, 3.0),
    Sketcher.Constraint("Radius", 37, 2.0),
    Sketcher.Constraint("Radius", 41, 2.0),
    Sketcher.Constraint("Radius", 43, 3.0),
    Sketcher.Constraint("Radius", 45, 3.0),
    Sketcher.Constraint("Radius", 47, 2.0),
    Sketcher.Constraint("Radius", 49, 28.0),
    Sketcher.Constraint("Radius", 50, 2.0),
    Sketcher.Constraint("Radius", 52, 28.0),
    Sketcher.Constraint("Radius", 54, 2.0),
    Sketcher.Constraint("Radius", 56, 3.0),
    Sketcher.Constraint("Radius", 58, 3.0),
    Sketcher.Constraint("Radius", 7, 23.5),
    Sketcher.Constraint("Radius", 19, 23.5),
    Sketcher.Constraint("Radius", 24, 23.5),
    Sketcher.Constraint("Radius", 34, 23.5),
    Sketcher.Constraint("Radius", 44, 23.5),
    Sketcher.Constraint("Radius", 57, 23.5),
    Sketcher.Constraint("DistanceY", -1, 1, 4, 3, 4.0),
    Sketcher.Constraint("DistanceY", -1, 1, 25, 3, 5.0),
    Sketcher.Constraint("DistanceY", 31, 3, -1, 1, 4.0),
    Sketcher.Constraint("DistanceY", 58, 3, -1, 1, 5.0),
    Sketcher.Constraint("Radius", 28, 27.999987),
    Sketcher.Constraint("Radius", 51, 27.999987),
    Sketcher.Constraint("DistanceY", -1, 1, 11, 2, 23.384298),
    Sketcher.Constraint("DistanceX", -1, 1, 22, 2, 11.672498),
    Sketcher.Constraint("DistanceY", -1, 1, 25, 1, 2.005901),
    Sketcher.Constraint("DistanceY", 46, 2, -1, 1, 23.384298),
    Sketcher.Constraint("DistanceX", 55, 2, -1, 1, 11.672498),
    Sketcher.Constraint("DistanceY", 58, 1, -1, 1, 2.005901),
    Sketcher.Constraint("DistanceX", 5, 1, 5, 2, 5.862996),
    Sketcher.Constraint("DistanceX", 32, 2, 32, 1, 5.862996),
    Sketcher.Constraint("DistanceY", -1, 1, 0, 3, 20.146609),
    Sketcher.Constraint("DistanceX", 4, 3, -1, 1, 25.743891),
    Sketcher.Constraint("DistanceY", -1, 1, 8, 3, 14.71736),
    Sketcher.Constraint("DistanceX", -1, 1, 10, 3, 5.610321),
    Sketcher.Constraint("DistanceY", -1, 1, 12, 3, 24.329489),
    Sketcher.Constraint("DistanceX", 18, 3, -1, 1, 5.610321),
    Sketcher.Constraint("DistanceY", -1, 1, 23, 3, 14.71736),
    Sketcher.Constraint("DistanceY", -1, 1, 27, 3, 4.18288),
    Sketcher.Constraint("DistanceX", -1, 1, 31, 3, 25.743891),
    Sketcher.Constraint("DistanceY", 35, 3, -1, 1, 14.71736),
    Sketcher.Constraint("DistanceY", 37, 3, -1, 1, 20.146609),
    Sketcher.Constraint("DistanceX", -1, 1, 43, 3, 5.610321),
    Sketcher.Constraint("DistanceX", 45, 3, -1, 1, 5.610321),
    Sketcher.Constraint("DistanceY", 47, 3, -1, 1, 24.329489),
    Sketcher.Constraint("DistanceY", 50, 3, -1, 1, 4.18288),
    Sketcher.Constraint("DistanceY", 56, 3, -1, 1, 14.71736),
    Sketcher.Constraint("DistanceY", -1, 1, 1, 2, 21.511879),
    Sketcher.Constraint("DistanceX", 4, 2, -1, 1, 25.743891),
    Sketcher.Constraint("DistanceX", 7, 1, -1, 1, 16.358951),
    Sketcher.Constraint("DistanceY", -1, 1, 8, 1, 16.377281),
    Sketcher.Constraint("DistanceX", -1, 1, 10, 1, 8.29732),
    Sketcher.Constraint("DistanceX", -1, 1, 12, 2, 10.169329),
    Sketcher.Constraint("DistanceX", 15, 2, -1, 1, 10.550838),
    Sketcher.Constraint("DistanceY", -1, 1, 17, 2, 18.21736),
    Sketcher.Constraint("DistanceY", -1, 1, 20, 2, 22.10533),
    Sketcher.Constraint("DistanceX", -1, 1, 23, 1, 16.358951),
    Sketcher.Constraint("DistanceX", -1, 1, 27, 2, 27.677552),
    Sketcher.Constraint("DistanceY", -1, 1, 27, 2, 4.237112),
    Sketcher.Constraint("DistanceY", -1, 1, 29, 2, 21.511879),
    Sketcher.Constraint("DistanceX", -1, 1, 31, 2, 25.743891),
    Sketcher.Constraint("DistanceX", -1, 1, 34, 1, 16.358951),
    Sketcher.Constraint("DistanceY", 35, 1, -1, 1, 16.377281),
    Sketcher.Constraint("DistanceY", 38, 2, -1, 1, 21.511879),
    Sketcher.Constraint("DistanceX", -1, 1, 40, 2, 10.550838),
    Sketcher.Constraint("DistanceY", 42, 2, -1, 1, 18.21736),
    Sketcher.Constraint("DistanceX", 45, 1, -1, 1, 8.29732),
    Sketcher.Constraint("DistanceX", 47, 2, -1, 1, 10.169329),
    Sketcher.Constraint("DistanceX", 50, 2, -1, 1, 27.677552),
    Sketcher.Constraint("DistanceY", 50, 2, -1, 1, 4.237112),
    Sketcher.Constraint("DistanceY", 52, 2, -1, 1, 21.511879),
    Sketcher.Constraint("DistanceY", 53, 2, -1, 1, 22.10533),
    Sketcher.Constraint("DistanceX", 56, 1, -1, 1, 16.358951),
    Sketcher.Constraint("Distance", 9, 5.674836),
    Sketcher.Constraint("Distance", 17, 5.862996),
    Sketcher.Constraint("Distance", 22, 5.862996),
    Sketcher.Constraint("Distance", 26, 5.674836),
    Sketcher.Constraint("Distance", 36, 5.674836),
    Sketcher.Constraint("Distance", 42, 5.862996),
    Sketcher.Constraint("Distance", 55, 5.862996),
    Sketcher.Constraint("Distance", 59, 5.674836),
    Sketcher.Constraint("DistanceX", 0, 3, -1, 1, 16.461624),
    Sketcher.Constraint("DistanceX", 16, 3, -1, 1, 9.407844),
    Sketcher.Constraint("DistanceX", -1, 1, 21, 3, 16.336047),
    Sketcher.Constraint("DistanceX", -1, 1, 37, 3, 16.461624),
    Sketcher.Constraint("DistanceX", -1, 1, 41, 3, 9.407844),
    Sketcher.Constraint("DistanceX", 54, 3, -1, 1, 16.336047),
    Sketcher.Constraint("DistanceX", 2, 2, -1, 1, 27.591405),
    Sketcher.Constraint("DistanceX", 6, 1, -1, 1, 22.790295),
    Sketcher.Constraint("DistanceX", -1, 1, 13, 2, 9.668262),
    Sketcher.Constraint("DistanceX", 14, 2, -1, 1, 9.668262),
    Sketcher.Constraint("DistanceX", 18, 1, -1, 1, 6.431343),
    Sketcher.Constraint("DistanceX", -1, 1, 19, 1, 6.431343),
    Sketcher.Constraint("DistanceX", -1, 1, 24, 1, 22.790295),
    Sketcher.Constraint("DistanceX", -1, 1, 28, 2, 27.591405),
    Sketcher.Constraint("DistanceX", -1, 1, 33, 1, 22.790295),
    Sketcher.Constraint("DistanceX", -1, 1, 39, 2, 27.591405),
    Sketcher.Constraint("DistanceX", -1, 1, 43, 1, 6.431343),
    Sketcher.Constraint("DistanceX", 44, 1, -1, 1, 6.431343),
    Sketcher.Constraint("DistanceX", 48, 2, -1, 1, 9.668262),
    Sketcher.Constraint("DistanceX", -1, 1, 49, 2, 9.668262),
    Sketcher.Constraint("DistanceX", 51, 2, -1, 1, 27.591405),
    Sketcher.Constraint("DistanceX", 57, 1, -1, 1, 22.790295),
])
pocket2 = body.newObject("PartDesign::Pocket", "Pocket001")
pocket2.Profile = sketch6
pocket2.Length = 10

# Sketch on XZ plane
sketch7 = body.newObject("Sketcher::SketchObject", "Sketch006")
sketch7.AttachmentSupport = (doc.getObject("XZ_Plane"), [""])
sketch7.MapMode = "FlatFace"
sketch7.AttachmentOffset = App.Placement(V(0, 0, -31), App.Rotation())
sketch7.addGeometry([
    Part.LineSegment(V(3, 3, 0), V(3, -3, 0)),
    Part.LineSegment(V(3, -3, 0), V(-3, -3, 0)),
    Part.LineSegment(V(-3, -3, 0), V(-3, 3, 0)),
    Part.LineSegment(V(-3, 3, 0), V(3, 3, 0)),
], False)
sketch7.addConstraint([
    Sketcher.Constraint("Coincident", 0, 2, 1, 1),
    Sketcher.Constraint("Coincident", 1, 2, 2, 1),
    Sketcher.Constraint("Coincident", 2, 2, 3, 1),
    Sketcher.Constraint("Coincident", 3, 2, 0, 1),
    Sketcher.Constraint("Vertical", 0),
    Sketcher.Constraint("Horizontal", 1),
    Sketcher.Constraint("Vertical", 2),
    Sketcher.Constraint("Horizontal", 3),
    Sketcher.Constraint("Symmetric", 0, 2, 2, 2, -1, 1),
    Sketcher.Constraint("Equal", 3, 0),
    Sketcher.Constraint("DistanceX", 1, 2, 1, 1, 6.148822),
])
pocket3 = body.newObject("PartDesign::Pocket", "Pocket002")
pocket3.Profile = sketch7
pocket3.Length = 20
pocket3.Reversed = True

doc.recompute()
